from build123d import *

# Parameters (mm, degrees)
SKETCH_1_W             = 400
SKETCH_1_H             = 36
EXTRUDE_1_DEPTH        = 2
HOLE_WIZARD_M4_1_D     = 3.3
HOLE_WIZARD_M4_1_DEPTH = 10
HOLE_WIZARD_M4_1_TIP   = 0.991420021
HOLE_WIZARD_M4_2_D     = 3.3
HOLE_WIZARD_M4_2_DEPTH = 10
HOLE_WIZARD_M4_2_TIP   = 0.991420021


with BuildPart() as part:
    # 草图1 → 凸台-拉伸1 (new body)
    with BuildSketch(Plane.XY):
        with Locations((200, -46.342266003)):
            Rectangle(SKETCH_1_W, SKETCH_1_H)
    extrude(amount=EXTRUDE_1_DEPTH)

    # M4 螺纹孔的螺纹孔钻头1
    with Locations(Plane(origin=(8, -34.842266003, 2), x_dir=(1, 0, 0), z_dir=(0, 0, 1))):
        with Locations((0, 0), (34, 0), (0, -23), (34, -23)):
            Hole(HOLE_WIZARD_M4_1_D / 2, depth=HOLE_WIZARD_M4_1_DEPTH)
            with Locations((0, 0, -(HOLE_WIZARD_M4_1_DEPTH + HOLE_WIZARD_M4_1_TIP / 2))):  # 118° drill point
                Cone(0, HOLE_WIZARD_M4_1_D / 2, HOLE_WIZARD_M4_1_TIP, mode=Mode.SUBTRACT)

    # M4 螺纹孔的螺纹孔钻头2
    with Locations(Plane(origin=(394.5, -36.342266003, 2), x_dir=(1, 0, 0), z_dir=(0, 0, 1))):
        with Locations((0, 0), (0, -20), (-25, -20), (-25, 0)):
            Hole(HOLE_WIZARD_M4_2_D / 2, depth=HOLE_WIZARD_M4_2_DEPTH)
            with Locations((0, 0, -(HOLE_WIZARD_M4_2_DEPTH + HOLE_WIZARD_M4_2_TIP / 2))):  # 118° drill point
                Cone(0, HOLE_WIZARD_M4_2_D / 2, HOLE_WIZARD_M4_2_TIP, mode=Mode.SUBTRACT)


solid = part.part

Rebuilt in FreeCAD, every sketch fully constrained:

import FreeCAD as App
import Part
import Sketcher


def add_polygon(sketch, points):
    """Adds a closed chain of lines whose ends are joined by coincident constraints."""
    first, n = sketch.GeometryCount, len(points)
    for a, b in zip(points, points[1:] + points[:1]):
        sketch.addGeometry(Part.LineSegment(App.Vector(*a, 0), App.Vector(*b, 0)), False)
    for i in range(n):
        sketch.addConstraint(Sketcher.Constraint("Coincident", first + i, 2, first + (i + 1) % n, 1))

doc = App.newDocument("Part")
params = doc.addObject("Spreadsheet::Sheet", "Params")
for row, (alias, value) in enumerate([
    ("sketch1_width", "400 mm"),
    ("sketch1_height", "36 mm"),
    ("pad1_length", "2 mm"),
    ("sketch2_diameter", "3.3 mm"),
    ("hole_diameter", "3.3 mm"),
    ("hole_depth", "10 mm"),
    ("sketch3_diameter", "3.3 mm"),
    ("hole2_diameter", "3.3 mm"),
    ("hole2_depth", "10 mm"),
], start=1):
    params.set(f"A{row}", alias)
    params.set(f"B{row}", "=" + value)
    params.setAlias(f"B{row}", alias)

body = doc.addObject("PartDesign::Body", "Body")

# Sketch on XY plane
sketch1 = body.newObject("Sketcher::SketchObject", "Sketch")
sketch1.AttachmentSupport = (doc.getObject("XY_Plane"), [""])
sketch1.MapMode = "FlatFace"
add_polygon(sketch1, [(0, -28.342266), (0, -64.342266), (400, -64.342266), (400, -28.342266)])  # lines 0-3
sketch1.addConstraint([
    Sketcher.Constraint("Vertical", 0),
    Sketcher.Constraint("Horizontal", 1),
    Sketcher.Constraint("Vertical", 2),
    Sketcher.Constraint("Horizontal", 3),
    Sketcher.Constraint("PointOnObject", 0, 2, -2),
    Sketcher.Constraint("DistanceX", 1, 1, 1, 2, 400.0),
    Sketcher.Constraint("DistanceY", 0, 2, 0, 1, 36.0),
    Sketcher.Constraint("DistanceY", 0, 2, -1, 1, 64.342266),
])
sketch1.setExpression("Constraints[9]", "Params.sketch1_width")
sketch1.setExpression("Constraints[10]", "Params.sketch1_height")
pad1 = body.newObject("PartDesign::Pad", "Pad")
pad1.Profile = sketch1
pad1.setExpression("Length", "Params.pad1_length")

# Sketch on XY plane
sketch2 = body.newObject("Sketcher::SketchObject", "Sketch001")
sketch2.AttachmentSupport = (doc.getObject("XY_Plane"), [""])
sketch2.MapMode = "FlatFace"
sketch2.AttachmentOffset = App.Placement(App.Vector(0, 0, 2), App.Rotation())
sketch2.addGeometry([
    Part.Circle(App.Vector(8, -34.842266, 0), App.Vector(0, 0, 1), 1.65),
    Part.Circle(App.Vector(42, -34.842266, 0), App.Vector(0, 0, 1), 1.65),
    Part.Circle(App.Vector(8, -57.842266, 0), App.Vector(0, 0, 1), 1.65),
    Part.Circle(App.Vector(42, -57.842266, 0), App.Vector(0, 0, 1), 1.65),
], False)
sketch2.addConstraint([
    Sketcher.Constraint("Equal", 0, 1),
    Sketcher.Constraint("Equal", 1, 2),
    Sketcher.Constraint("Equal", 2, 3),
    Sketcher.Constraint("Horizontal", 0, 3, 1, 3),
    Sketcher.Constraint("Horizontal", 2, 3, 3, 3),
    Sketcher.Constraint("Vertical", 0, 3, 2, 3),
    Sketcher.Constraint("Vertical", 1, 3, 3, 3),
    Sketcher.Constraint("Diameter", 0, 3.3),
    Sketcher.Constraint("DistanceX", -1, 1, 0, 3, 8.0),
    Sketcher.Constraint("DistanceX", -1, 1, 1, 3, 42.0),
    Sketcher.Constraint("DistanceY", 2, 3, 0, 3, 23.0),
    Sketcher.Constraint("DistanceY", 0, 3, -1, 1, 34.842266),
])
sketch2.setExpression("Constraints[7]", "Params.sketch2_diameter")
doc.recompute()
hole = body.newObject("PartDesign::Hole", "Hole")
hole.Profile = sketch2
hole.ThreadType = "None"
hole.setExpression("Diameter", "Params.hole_diameter")
hole.DepthType = "Dimension"
hole.setExpression("Depth", "Params.hole_depth")
hole.DrillPoint = "Angled"
hole.DrillPointAngle = 118

# Sketch on XY plane
sketch3 = body.newObject("Sketcher::SketchObject", "Sketch002")
sketch3.AttachmentSupport = (doc.getObject("XY_Plane"), [""])
sketch3.MapMode = "FlatFace"
sketch3.AttachmentOffset = App.Placement(App.Vector(0, 0, 2), App.Rotation())
sketch3.addGeometry([
    Part.Circle(App.Vector(394.5, -36.342266, 0), App.Vector(0, 0, 1), 1.65),
    Part.Circle(App.Vector(394.5, -56.342266, 0), App.Vector(0, 0, 1), 1.65),
    Part.Circle(App.Vector(369.5, -56.342266, 0), App.Vector(0, 0, 1), 1.65),
    Part.Circle(App.Vector(369.5, -36.342266, 0), App.Vector(0, 0, 1), 1.65),
], False)
sketch3.addConstraint([
    Sketcher.Constraint("Equal", 0, 1),
    Sketcher.Constraint("Equal", 1, 2),
    Sketcher.Constraint("Equal", 2, 3),
    Sketcher.Constraint("Horizontal", 1, 3, 2, 3),
    Sketcher.Constraint("Horizontal", 0, 3, 3, 3),
    Sketcher.Constraint("Vertical", 0, 3, 1, 3),
    Sketcher.Constraint("Vertical", 2, 3, 3, 3),
    Sketcher.Constraint("Diameter", 0, 3.3),
    Sketcher.Constraint("DistanceY", 1, 3, 0, 3, 20.0),
    Sketcher.Constraint("DistanceX", 2, 3, 1, 3, 25.0),
    Sketcher.Constraint("DistanceX", -1, 1, 0, 3, 394.5),
    Sketcher.Constraint("DistanceY", 0, 3, -1, 1, 36.342266),
])
sketch3.setExpression("Constraints[7]", "Params.sketch3_diameter")
doc.recompute()
hole2 = body.newObject("PartDesign::Hole", "Hole001")
hole2.Profile = sketch3
hole2.ThreadType = "None"
hole2.setExpression("Diameter", "Params.hole2_diameter")
hole2.DepthType = "Dimension"
hole2.setExpression("Depth", "Params.hole2_depth")
hole2.DrillPoint = "Angled"
hole2.DrillPointAngle = 118

doc.recompute()
